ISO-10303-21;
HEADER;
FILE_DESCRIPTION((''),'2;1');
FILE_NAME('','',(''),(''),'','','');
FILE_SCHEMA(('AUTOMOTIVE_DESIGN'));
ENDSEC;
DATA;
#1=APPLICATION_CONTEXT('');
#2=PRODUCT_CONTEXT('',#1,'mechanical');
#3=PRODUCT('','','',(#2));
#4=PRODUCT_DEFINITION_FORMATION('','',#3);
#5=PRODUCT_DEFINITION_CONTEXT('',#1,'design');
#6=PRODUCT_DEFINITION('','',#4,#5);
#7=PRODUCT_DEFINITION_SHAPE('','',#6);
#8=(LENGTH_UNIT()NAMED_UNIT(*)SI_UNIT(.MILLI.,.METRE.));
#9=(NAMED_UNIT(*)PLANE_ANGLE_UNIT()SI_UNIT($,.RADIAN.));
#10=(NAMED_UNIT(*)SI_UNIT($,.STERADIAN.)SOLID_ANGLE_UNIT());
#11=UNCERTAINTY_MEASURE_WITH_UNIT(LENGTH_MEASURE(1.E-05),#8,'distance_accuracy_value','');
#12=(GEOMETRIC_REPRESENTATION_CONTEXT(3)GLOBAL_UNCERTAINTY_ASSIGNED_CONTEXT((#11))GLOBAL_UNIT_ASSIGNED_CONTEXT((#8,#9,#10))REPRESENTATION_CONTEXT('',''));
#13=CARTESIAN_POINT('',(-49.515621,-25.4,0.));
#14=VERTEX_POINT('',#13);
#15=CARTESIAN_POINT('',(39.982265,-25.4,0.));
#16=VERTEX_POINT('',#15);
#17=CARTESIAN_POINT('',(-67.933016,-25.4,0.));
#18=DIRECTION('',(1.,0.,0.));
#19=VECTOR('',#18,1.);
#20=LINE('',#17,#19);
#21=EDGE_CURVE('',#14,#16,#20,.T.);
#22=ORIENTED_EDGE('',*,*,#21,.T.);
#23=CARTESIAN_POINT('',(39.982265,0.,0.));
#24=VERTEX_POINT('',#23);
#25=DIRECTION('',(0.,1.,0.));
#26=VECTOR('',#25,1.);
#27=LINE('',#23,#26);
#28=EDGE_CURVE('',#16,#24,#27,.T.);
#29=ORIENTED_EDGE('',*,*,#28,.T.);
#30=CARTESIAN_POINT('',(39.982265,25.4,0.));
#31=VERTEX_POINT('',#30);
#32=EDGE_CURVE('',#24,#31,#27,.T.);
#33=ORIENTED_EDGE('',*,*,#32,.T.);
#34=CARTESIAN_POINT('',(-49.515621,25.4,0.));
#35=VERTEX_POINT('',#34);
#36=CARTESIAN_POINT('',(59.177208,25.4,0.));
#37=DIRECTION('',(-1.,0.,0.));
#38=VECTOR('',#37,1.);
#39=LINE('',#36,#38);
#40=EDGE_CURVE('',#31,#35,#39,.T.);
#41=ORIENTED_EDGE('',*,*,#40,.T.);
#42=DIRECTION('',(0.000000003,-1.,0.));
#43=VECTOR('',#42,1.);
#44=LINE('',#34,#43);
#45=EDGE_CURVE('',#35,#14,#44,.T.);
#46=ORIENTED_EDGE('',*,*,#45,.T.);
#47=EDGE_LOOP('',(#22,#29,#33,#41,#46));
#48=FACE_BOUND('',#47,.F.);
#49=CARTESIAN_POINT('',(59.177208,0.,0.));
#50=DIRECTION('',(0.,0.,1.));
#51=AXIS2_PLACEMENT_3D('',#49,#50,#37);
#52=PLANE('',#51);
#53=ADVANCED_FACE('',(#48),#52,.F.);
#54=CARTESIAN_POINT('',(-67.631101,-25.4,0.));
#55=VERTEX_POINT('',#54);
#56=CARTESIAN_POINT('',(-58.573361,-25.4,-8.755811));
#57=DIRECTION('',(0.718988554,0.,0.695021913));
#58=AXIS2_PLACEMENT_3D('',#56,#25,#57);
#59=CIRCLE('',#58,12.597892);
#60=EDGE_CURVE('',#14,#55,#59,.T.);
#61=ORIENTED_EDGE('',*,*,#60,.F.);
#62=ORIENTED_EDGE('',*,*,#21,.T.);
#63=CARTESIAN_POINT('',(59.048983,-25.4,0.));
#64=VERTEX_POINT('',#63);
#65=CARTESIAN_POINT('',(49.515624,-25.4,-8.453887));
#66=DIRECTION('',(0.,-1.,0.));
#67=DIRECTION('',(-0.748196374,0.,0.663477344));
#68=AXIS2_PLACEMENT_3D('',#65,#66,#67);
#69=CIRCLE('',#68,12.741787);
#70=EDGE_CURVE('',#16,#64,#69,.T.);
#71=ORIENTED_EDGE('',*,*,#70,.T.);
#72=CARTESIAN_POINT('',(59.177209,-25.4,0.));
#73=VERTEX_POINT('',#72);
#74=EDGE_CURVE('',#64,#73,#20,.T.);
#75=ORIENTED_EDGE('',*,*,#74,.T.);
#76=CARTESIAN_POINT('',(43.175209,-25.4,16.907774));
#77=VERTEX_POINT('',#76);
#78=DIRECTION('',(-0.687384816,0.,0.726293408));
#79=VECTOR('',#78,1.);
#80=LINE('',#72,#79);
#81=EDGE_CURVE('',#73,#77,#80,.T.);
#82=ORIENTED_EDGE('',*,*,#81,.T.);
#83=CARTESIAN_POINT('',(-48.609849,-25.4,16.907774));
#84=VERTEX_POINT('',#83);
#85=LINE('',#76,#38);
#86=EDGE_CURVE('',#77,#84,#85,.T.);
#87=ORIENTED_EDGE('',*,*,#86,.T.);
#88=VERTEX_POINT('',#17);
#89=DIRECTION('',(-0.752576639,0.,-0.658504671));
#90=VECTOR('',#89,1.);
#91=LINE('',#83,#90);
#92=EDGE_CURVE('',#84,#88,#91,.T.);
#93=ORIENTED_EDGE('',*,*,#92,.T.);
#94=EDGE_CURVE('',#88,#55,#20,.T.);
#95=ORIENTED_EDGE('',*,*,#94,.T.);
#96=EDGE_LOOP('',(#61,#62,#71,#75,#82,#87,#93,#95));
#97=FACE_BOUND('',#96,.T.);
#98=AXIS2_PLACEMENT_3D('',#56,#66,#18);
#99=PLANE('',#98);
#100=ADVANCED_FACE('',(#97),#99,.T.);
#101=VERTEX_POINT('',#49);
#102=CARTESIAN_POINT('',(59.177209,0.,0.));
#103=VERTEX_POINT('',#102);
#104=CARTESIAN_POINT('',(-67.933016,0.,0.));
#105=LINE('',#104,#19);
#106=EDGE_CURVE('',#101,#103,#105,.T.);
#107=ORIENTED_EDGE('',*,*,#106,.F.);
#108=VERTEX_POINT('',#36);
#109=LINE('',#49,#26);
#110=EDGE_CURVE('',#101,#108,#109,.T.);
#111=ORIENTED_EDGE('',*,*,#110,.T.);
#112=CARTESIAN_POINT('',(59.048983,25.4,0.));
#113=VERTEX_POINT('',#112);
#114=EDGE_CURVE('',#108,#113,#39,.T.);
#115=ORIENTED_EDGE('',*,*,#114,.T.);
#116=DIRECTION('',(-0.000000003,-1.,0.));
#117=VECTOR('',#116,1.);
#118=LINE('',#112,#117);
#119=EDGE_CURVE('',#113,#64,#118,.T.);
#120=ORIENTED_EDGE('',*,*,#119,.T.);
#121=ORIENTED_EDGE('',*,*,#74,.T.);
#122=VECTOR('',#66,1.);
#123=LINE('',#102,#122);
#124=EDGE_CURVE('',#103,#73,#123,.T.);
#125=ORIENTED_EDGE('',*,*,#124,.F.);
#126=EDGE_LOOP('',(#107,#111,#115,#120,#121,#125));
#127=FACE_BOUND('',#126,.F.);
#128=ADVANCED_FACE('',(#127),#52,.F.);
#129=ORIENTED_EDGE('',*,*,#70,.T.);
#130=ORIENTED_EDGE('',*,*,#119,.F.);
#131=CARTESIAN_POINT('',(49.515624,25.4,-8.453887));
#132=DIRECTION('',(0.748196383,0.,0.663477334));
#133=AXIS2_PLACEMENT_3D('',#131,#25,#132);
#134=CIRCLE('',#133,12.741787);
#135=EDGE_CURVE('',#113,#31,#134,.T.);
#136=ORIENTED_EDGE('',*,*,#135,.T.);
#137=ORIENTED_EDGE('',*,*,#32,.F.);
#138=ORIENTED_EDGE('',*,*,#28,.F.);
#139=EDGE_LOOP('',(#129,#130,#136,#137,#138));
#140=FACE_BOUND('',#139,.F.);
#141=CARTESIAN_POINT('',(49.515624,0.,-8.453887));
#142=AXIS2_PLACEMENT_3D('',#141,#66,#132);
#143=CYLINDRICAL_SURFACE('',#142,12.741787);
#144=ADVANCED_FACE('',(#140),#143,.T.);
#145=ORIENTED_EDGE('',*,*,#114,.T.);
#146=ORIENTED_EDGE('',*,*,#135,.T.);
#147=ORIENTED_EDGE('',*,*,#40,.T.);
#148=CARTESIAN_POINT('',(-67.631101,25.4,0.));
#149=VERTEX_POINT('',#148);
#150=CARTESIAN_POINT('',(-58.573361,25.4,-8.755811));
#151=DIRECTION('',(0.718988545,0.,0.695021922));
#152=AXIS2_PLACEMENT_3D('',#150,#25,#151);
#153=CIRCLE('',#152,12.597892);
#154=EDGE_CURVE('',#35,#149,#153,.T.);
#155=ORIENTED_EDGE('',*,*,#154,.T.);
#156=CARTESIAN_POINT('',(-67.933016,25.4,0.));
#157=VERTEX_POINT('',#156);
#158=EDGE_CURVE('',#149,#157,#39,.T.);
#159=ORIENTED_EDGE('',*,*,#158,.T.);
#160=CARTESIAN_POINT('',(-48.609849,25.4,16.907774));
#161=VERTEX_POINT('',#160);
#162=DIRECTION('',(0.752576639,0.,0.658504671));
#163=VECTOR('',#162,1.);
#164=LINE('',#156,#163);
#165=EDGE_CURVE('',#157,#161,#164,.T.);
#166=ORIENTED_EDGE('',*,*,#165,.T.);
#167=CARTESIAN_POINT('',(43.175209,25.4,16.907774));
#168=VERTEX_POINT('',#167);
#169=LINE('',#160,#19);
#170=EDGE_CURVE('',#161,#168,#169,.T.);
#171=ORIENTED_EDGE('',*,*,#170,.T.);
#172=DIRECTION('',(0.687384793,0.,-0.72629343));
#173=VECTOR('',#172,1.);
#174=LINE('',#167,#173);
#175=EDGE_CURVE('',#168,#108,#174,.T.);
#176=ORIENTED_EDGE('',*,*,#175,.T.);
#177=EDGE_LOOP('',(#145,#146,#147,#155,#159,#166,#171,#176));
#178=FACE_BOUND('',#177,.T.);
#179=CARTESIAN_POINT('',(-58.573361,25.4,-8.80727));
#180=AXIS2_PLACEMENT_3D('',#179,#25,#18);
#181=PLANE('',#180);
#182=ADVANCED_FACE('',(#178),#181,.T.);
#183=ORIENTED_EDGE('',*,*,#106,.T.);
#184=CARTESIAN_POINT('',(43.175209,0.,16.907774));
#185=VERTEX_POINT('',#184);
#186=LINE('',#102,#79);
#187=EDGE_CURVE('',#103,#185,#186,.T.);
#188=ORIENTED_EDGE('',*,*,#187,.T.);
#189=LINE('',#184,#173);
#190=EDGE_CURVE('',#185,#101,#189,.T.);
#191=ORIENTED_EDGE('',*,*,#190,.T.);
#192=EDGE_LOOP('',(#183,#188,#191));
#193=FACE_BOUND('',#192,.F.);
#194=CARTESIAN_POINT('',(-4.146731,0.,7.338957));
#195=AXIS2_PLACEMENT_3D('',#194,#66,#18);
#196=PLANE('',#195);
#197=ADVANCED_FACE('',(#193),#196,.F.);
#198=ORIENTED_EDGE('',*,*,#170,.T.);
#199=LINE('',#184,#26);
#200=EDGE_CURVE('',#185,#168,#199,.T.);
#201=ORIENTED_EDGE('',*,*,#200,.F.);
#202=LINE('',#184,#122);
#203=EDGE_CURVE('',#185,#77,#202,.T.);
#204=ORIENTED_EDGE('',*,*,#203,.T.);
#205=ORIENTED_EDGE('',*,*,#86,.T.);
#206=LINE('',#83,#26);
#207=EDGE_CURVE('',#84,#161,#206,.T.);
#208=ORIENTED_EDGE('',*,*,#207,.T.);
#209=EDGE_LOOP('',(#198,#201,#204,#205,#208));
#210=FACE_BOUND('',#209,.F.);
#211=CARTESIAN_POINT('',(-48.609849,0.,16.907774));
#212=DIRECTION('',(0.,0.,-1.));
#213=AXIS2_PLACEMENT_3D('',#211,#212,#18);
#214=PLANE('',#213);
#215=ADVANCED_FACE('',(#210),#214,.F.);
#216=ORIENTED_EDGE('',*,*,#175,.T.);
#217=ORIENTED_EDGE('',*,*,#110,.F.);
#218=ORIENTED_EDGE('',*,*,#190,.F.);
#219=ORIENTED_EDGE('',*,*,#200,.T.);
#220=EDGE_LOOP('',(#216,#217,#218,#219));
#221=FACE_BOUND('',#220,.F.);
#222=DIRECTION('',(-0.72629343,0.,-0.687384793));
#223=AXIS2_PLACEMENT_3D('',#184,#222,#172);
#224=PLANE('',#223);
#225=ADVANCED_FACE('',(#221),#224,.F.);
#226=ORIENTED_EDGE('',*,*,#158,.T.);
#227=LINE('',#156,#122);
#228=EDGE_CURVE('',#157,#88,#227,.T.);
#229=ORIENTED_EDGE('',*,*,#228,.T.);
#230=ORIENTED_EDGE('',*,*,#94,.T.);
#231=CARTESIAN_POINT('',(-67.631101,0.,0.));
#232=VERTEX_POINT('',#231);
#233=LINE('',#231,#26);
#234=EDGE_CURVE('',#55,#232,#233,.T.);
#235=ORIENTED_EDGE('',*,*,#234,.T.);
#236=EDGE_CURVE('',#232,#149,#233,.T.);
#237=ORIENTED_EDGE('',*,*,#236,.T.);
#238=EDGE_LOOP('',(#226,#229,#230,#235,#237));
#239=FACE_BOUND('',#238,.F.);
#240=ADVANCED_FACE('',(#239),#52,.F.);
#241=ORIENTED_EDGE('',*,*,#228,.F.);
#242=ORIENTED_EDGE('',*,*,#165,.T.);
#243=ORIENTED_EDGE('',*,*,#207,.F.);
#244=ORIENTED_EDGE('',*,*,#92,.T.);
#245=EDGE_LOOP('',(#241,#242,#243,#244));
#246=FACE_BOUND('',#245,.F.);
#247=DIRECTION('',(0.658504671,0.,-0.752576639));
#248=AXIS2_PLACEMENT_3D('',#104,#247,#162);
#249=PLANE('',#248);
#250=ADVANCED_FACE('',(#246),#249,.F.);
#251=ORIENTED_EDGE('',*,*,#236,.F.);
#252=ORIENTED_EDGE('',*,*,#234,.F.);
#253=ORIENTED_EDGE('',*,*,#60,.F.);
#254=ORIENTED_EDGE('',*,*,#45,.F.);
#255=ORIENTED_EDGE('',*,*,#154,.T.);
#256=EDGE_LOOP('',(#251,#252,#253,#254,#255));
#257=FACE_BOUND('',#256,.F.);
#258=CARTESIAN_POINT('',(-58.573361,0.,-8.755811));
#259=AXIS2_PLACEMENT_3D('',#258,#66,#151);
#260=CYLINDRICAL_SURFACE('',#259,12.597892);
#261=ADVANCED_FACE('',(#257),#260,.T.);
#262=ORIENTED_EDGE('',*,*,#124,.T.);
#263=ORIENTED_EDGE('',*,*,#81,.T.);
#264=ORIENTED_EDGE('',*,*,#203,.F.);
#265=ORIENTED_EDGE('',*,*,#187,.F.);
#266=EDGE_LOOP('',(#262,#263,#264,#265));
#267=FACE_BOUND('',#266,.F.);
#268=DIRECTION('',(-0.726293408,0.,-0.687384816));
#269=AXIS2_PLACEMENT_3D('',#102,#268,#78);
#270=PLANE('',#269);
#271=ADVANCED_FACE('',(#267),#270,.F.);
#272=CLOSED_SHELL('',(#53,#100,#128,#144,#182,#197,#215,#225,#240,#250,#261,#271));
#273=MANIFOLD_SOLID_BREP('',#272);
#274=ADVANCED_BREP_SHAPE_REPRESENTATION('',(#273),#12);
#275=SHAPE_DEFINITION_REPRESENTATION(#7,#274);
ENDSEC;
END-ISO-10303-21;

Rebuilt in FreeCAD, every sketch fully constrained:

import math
import FreeCAD as App
import Part
import Sketcher

V = App.Vector
Q = App.Units.Quantity


def add_polygon(sketch, points):
    """Adds a closed chain of lines whose ends are joined by coincident constraints."""
    first, n = sketch.GeometryCount, len(points)
    for a, b in zip(points, points[1:] + points[:1]):
        sketch.addGeometry(Part.LineSegment(App.Vector(*a, 0), App.Vector(*b, 0)), False)
    for i in range(n):
        sketch.addConstraint(Sketcher.Constraint("Coincident", first + i, 2, first + (i + 1) % n, 1))

doc = App.newDocument("Part")
body = doc.addObject("PartDesign::Body", "Body")

sketch1 = body.newObject("Sketcher::SketchObject", "Sketch")
sketch1.AttachmentSupport = (doc.getObject("XZ_Plane"), [""])
sketch1.MapMode = "FlatFace"
add_polygon(sketch1, [(-49, 17), (-68, 0), (59, 0), (43, 17)])
sketch1.addConstraint([
    Sketcher.Constraint("Horizontal", 1),
    Sketcher.Constraint("Horizontal", 3),
    Sketcher.Constraint("PointOnObject", 0, 2, -1),
    Sketcher.Constraint("DistanceX", 2, 2, 1, 2, Q("0.63 in")),
    Sketcher.Constraint("DistanceX", 1, 1, 1, 2, Q("127.110225 mm")),
    Sketcher.Constraint("DistanceX", 3, 2, 3, 1, Q("91.785058 mm")),
    Sketcher.Constraint("DistanceX", -1, 1, 1, 2, Q("59.177209 mm")),
    Sketcher.Constraint("Distance", 0, Q("25.676012 mm")),
])
pad1 = body.newObject("PartDesign::Pad", "Pad")
pad1.Profile = sketch1
pad1.Length = Q("1 in")

sketch2 = body.newObject("Sketcher::SketchObject", "Sketch001")
sketch2.AttachmentSupport = (doc.getObject("XZ_Plane"), [""])
sketch2.MapMode = "FlatFace"
add_polygon(sketch2, [(-68, 0), (-49, 17), (43, 17), (59, 0)])
sketch2.addConstraint([
    Sketcher.Constraint("Horizontal", 1),
    Sketcher.Constraint("Horizontal", 3),
    Sketcher.Constraint("PointOnObject", 2, 2, -1),
    Sketcher.Constraint("DistanceX", 1, 2, 2, 2, Q("0.63 in")),
    Sketcher.Constraint("DistanceX", 1, 1, 1, 2, Q("91.785058 mm")),
    Sketcher.Constraint("DistanceX", 3, 2, 3, 1, Q("127.110224 mm")),
    Sketcher.Constraint("DistanceX", 0, 2, -1, 1, Q("48.609849 mm")),
    Sketcher.Constraint("Distance", 0, Q("25.676012 mm")),
])
pad2 = body.newObject("PartDesign::Pad", "Pad001")
pad2.Profile = sketch2
pad2.Length = Q("1 in")
pad2.Reversed = True

sketch3 = body.newObject("Sketcher::SketchObject", "Sketch002")
sketch3.AttachmentSupport = (doc.getObject("XZ_Plane"), [""])
sketch3.MapMode = "FlatFace"
sketch3.addGeometry(Part.Circle(V(50, -8, 0), V(0, 0, 1), 13), False)
sketch3.addConstraint([
    Sketcher.Constraint("Diameter", 0, Q("25.483574 mm")),
    Sketcher.Constraint("DistanceX", -1, 1, 0, 3, Q("49.515624 mm")),
    Sketcher.Constraint("DistanceY", 0, 3, -1, 1, Q("8.453887 mm")),
])
pad3 = body.newObject("PartDesign::Pad", "Pad002")
pad3.Profile = sketch3
pad3.Length = Q("1 in")

sketch4 = body.newObject("Sketcher::SketchObject", "Sketch003")
sketch4.AttachmentSupport = (doc.getObject("XZ_Plane"), [""])
sketch4.MapMode = "FlatFace"
sketch4.addGeometry([
    Part.ArcOfCircle(Part.Circle(V(50, -8, 0), V(0, 0, 1), 13), math.radians(138), math.radians(402)),
    Part.LineSegment(V(40, 0, 0), V(59, 0, 0)),
], False)
sketch4.addConstraint([
    Sketcher.Constraint("Coincident", 0, 1, 1, 1),
    Sketcher.Constraint("Coincident", 1, 2, 0, 2),
    Sketcher.Constraint("Horizontal", 1),
    Sketcher.Constraint("PointOnObject", 0, 1, -1),
    Sketcher.Constraint("Radius", 0, Q("12.741787 mm")),
    Sketcher.Constraint("DistanceX", 1, 1, 1, 2, Q("19.066718 mm")),
    Sketcher.Constraint("DistanceX", -1, 1, 0, 3, Q("49.515624 mm")),
])
pad4 = body.newObject("PartDesign::Pad", "Pad003")
pad4.Profile = sketch4
pad4.Length = Q("1 in")
pad4.Reversed = True

sketch5 = body.newObject("Sketcher::SketchObject", "Sketch004")
sketch5.AttachmentSupport = (doc.getObject("XZ_Plane"), [""])
sketch5.MapMode = "FlatFace"
sketch5.addGeometry([
    Part.Circle(V(-59, -9, 0), V(0, 0, 1), 13),
    Part.Circle(V(50, -8, 0), V(0, 0, 1), 13),
], False)
sketch5.addConstraint([
    Sketcher.Constraint("Diameter", 0, Q("25.195784 mm")),
    Sketcher.Constraint("Diameter", 1, Q("25.483574 mm")),
    Sketcher.Constraint("DistanceX", 0, 3, -1, 1, Q("58.573361 mm")),
    Sketcher.Constraint("DistanceY", 0, 3, -1, 1, Q("8.755811 mm")),
    Sketcher.Constraint("DistanceX", -1, 1, 1, 3, Q("49.515624 mm")),
    Sketcher.Constraint("DistanceY", 1, 3, -1, 1, Q("8.453887 mm")),
])
pad5 = body.newObject("PartDesign::Pad", "Pad004")
pad5.Profile = sketch5
pad5.Length = Q("1 in")

sketch6 = body.newObject("Sketcher::SketchObject", "Sketch005")
sketch6.AttachmentSupport = (doc.getObject("XZ_Plane"), [""])
sketch6.MapMode = "FlatFace"
sketch6.addGeometry([
    Part.ArcOfCircle(Part.Circle(V(-59, -9, 0), V(0, 0, 1), 13), math.radians(136), math.radians(404)),
    Part.LineSegment(V(-68, 0, 0), V(-50, 0, 0)),
], False)
sketch6.addConstraint([
    Sketcher.Constraint("Coincident", 0, 1, 1, 1),
    Sketcher.Constraint("Coincident", 1, 2, 0, 2),
    Sketcher.Constraint("Horizontal", 1),
    Sketcher.Constraint("PointOnObject", 0, 1, -1),
    Sketcher.Constraint("Radius", 0, Q("12.597892 mm")),
    Sketcher.Constraint("DistanceX", 1, 1, 1, 2, Q("18.11548 mm")),
    Sketcher.Constraint("DistanceX", 0, 1, -1, 1, Q("67.631101 mm")),
])
pad6 = body.newObject("PartDesign::Pad", "Pad005")
pad6.Profile = sketch6
pad6.Length = Q("1 in")
pad6.Reversed = True

doc.recompute()
